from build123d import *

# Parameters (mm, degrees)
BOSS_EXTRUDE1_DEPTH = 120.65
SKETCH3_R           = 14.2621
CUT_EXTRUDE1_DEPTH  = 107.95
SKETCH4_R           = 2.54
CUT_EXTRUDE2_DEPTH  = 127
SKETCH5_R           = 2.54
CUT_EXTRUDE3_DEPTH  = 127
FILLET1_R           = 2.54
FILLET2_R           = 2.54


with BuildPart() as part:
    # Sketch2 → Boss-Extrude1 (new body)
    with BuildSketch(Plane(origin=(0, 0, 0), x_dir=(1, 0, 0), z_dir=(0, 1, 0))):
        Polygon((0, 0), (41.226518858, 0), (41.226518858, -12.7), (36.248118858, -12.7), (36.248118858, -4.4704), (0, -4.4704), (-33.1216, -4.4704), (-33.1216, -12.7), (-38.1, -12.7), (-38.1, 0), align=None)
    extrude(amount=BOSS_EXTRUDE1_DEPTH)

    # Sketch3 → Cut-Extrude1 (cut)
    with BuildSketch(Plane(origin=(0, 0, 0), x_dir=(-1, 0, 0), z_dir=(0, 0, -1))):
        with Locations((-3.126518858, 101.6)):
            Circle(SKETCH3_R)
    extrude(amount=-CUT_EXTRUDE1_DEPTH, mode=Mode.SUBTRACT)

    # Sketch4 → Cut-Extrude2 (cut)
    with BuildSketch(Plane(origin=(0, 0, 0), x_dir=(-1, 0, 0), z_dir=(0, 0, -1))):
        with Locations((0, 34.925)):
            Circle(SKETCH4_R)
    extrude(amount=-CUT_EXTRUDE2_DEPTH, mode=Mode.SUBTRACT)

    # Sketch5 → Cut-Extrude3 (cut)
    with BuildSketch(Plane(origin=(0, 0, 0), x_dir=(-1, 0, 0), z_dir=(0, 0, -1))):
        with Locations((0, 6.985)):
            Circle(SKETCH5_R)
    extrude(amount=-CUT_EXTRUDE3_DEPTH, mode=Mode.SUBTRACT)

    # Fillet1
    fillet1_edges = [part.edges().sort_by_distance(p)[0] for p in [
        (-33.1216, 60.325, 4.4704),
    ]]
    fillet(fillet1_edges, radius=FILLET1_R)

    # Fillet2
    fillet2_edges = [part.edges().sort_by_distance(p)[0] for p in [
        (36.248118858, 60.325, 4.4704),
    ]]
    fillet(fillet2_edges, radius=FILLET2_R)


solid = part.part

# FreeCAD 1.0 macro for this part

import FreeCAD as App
import Part
import Sketcher
Q = App.Units.Quantity


def edges_at(feature, points):
    """Names of the edges that pass closest to the given points."""
    edges = feature.Shape.Edges
    near = lambda p: min(range(len(edges)), key=lambda i: edges[i].distToShape(Part.Vertex(*p))[0])
    return sorted({f"Edge{near(p) + 1}" for p in points})


def add_polygon(sketch, points):
    """Adds a closed chain of lines whose ends are joined by coincident constraints."""
    first, n = sketch.GeometryCount, len(points)
    for a, b in zip(points, points[1:] + points[:1]):
        sketch.addGeometry(Part.LineSegment(App.Vector(*a, 0), App.Vector(*b, 0)), False)
    for i in range(n):
        sketch.addConstraint(Sketcher.Constraint("Coincident", first + i, 2, first + (i + 1) % n, 1))

doc = App.newDocument("Part")
body = doc.addObject("PartDesign::Body", "Body")

sketch1 = body.newObject("Sketcher::SketchObject", "Sketch")
sketch1.AttachmentSupport = (doc.getObject("XZ_Plane"), [""])
sketch1.MapMode = "FlatFace"
add_polygon(sketch1, [(41.226519, 0), (-38.1, 0), (-38.1, 12.7), (-33.1216, 12.7), (-33.1216, 4.4704), (36.248119, 4.4704), (36.248119, 12.7), (41.226519, 12.7)])
sketch1.addConstraint([
    Sketcher.Constraint("Horizontal", 0),
    Sketcher.Constraint("Vertical", 1),
    Sketcher.Constraint("Horizontal", 2),
    Sketcher.Constraint("Vertical", 3),
    Sketcher.Constraint("Horizontal", 4),
    Sketcher.Constraint("Vertical", 5),
    Sketcher.Constraint("Horizontal", 6),
    Sketcher.Constraint("Vertical", 7),
    Sketcher.Constraint("PointOnObject", 0, 2, -1),
    Sketcher.Constraint("Horizontal", 2, 2, 5, 2),
    Sketcher.Constraint("Equal", 2, 6),
    Sketcher.Constraint("DistanceY", 1, 1, 1, 2, Q("0.5 in")),
    Sketcher.Constraint("DistanceX", 0, 2, -1, 1, Q("1.5 in")),
    Sketcher.Constraint("DistanceX", 2, 1, 2, 2, Q("0.196 in")),
    Sketcher.Constraint("DistanceY", 3, 2, 3, 1, Q("0.324 in")),
    Sketcher.Constraint("DistanceX", 0, 2, 0, 1, Q("79.326519 mm")),
])
pad1 = body.newObject("PartDesign::Pad", "Pad")
pad1.Profile = sketch1
pad1.Length = Q("4.75 in")
pad1.Reversed = True

sketch2 = body.newObject("Sketcher::SketchObject", "Sketch001")
sketch2.AttachmentSupport = (doc.getObject("XY_Plane"), [""])
sketch2.MapMode = "FlatFace"
sketch2.addGeometry(Part.Circle(App.Vector(3.126519, 101.6, 0), App.Vector(0, 0, 1), 14.2621), False)
sketch2.addConstraint([
    Sketcher.Constraint("Diameter", 0, Q("1.123 in")),
    Sketcher.Constraint("DistanceY", -1, 1, 0, 3, Q("4 in")),
    Sketcher.Constraint("DistanceX", -1, 1, 0, 3, Q("3.126519 mm")),
])
pocket1 = body.newObject("PartDesign::Pocket", "Pocket")
pocket1.Profile = sketch2
pocket1.Length = Q("4.25 in")
pocket1.Reversed = True

sketch3 = body.newObject("Sketcher::SketchObject", "Sketch002")
sketch3.AttachmentSupport = (doc.getObject("XY_Plane"), [""])
sketch3.MapMode = "FlatFace"
sketch3.addGeometry(Part.Circle(App.Vector(0, 34.925, 0), App.Vector(0, 0, 1), 2.54), False)
sketch3.addConstraint([
    Sketcher.Constraint("PointOnObject", 0, 3, -2),
    Sketcher.Constraint("Diameter", 0, Q("0.2 in")),
    Sketcher.Constraint("DistanceY", -1, 1, 0, 3, Q("1.375 in")),
])
pocket2 = body.newObject("PartDesign::Pocket", "Pocket001")
pocket2.Profile = sketch3
pocket2.Length = Q("5 in")
pocket2.Reversed = True

sketch4 = body.newObject("Sketcher::SketchObject", "Sketch003")
sketch4.AttachmentSupport = (doc.getObject("XY_Plane"), [""])
sketch4.MapMode = "FlatFace"
sketch4.addGeometry(Part.Circle(App.Vector(0, 6.985, 0), App.Vector(0, 0, 1), 2.54), False)
sketch4.addConstraint([
    Sketcher.Constraint("PointOnObject", 0, 3, -2),
    Sketcher.Constraint("Diameter", 0, Q("0.2 in")),
    Sketcher.Constraint("DistanceY", -1, 1, 0, 3, Q("0.275 in")),
])
pocket3 = body.newObject("PartDesign::Pocket", "Pocket002")
pocket3.Profile = sketch4
pocket3.Length = Q("5 in")
pocket3.Reversed = True
doc.recompute()

fillet = body.newObject("PartDesign::Fillet", "Fillet")
fillet.Base = (pocket3, edges_at(pocket3, [(-33.122, 60.325, 4.47)]))
fillet.Radius = Q("0.1 in")
doc.recompute()

fillet2 = body.newObject("PartDesign::Fillet", "Fillet001")
fillet2.Base = (fillet, edges_at(fillet, [(36.248, 60.325, 4.47)]))
fillet2.Radius = Q("0.1 in")

doc.recompute()
